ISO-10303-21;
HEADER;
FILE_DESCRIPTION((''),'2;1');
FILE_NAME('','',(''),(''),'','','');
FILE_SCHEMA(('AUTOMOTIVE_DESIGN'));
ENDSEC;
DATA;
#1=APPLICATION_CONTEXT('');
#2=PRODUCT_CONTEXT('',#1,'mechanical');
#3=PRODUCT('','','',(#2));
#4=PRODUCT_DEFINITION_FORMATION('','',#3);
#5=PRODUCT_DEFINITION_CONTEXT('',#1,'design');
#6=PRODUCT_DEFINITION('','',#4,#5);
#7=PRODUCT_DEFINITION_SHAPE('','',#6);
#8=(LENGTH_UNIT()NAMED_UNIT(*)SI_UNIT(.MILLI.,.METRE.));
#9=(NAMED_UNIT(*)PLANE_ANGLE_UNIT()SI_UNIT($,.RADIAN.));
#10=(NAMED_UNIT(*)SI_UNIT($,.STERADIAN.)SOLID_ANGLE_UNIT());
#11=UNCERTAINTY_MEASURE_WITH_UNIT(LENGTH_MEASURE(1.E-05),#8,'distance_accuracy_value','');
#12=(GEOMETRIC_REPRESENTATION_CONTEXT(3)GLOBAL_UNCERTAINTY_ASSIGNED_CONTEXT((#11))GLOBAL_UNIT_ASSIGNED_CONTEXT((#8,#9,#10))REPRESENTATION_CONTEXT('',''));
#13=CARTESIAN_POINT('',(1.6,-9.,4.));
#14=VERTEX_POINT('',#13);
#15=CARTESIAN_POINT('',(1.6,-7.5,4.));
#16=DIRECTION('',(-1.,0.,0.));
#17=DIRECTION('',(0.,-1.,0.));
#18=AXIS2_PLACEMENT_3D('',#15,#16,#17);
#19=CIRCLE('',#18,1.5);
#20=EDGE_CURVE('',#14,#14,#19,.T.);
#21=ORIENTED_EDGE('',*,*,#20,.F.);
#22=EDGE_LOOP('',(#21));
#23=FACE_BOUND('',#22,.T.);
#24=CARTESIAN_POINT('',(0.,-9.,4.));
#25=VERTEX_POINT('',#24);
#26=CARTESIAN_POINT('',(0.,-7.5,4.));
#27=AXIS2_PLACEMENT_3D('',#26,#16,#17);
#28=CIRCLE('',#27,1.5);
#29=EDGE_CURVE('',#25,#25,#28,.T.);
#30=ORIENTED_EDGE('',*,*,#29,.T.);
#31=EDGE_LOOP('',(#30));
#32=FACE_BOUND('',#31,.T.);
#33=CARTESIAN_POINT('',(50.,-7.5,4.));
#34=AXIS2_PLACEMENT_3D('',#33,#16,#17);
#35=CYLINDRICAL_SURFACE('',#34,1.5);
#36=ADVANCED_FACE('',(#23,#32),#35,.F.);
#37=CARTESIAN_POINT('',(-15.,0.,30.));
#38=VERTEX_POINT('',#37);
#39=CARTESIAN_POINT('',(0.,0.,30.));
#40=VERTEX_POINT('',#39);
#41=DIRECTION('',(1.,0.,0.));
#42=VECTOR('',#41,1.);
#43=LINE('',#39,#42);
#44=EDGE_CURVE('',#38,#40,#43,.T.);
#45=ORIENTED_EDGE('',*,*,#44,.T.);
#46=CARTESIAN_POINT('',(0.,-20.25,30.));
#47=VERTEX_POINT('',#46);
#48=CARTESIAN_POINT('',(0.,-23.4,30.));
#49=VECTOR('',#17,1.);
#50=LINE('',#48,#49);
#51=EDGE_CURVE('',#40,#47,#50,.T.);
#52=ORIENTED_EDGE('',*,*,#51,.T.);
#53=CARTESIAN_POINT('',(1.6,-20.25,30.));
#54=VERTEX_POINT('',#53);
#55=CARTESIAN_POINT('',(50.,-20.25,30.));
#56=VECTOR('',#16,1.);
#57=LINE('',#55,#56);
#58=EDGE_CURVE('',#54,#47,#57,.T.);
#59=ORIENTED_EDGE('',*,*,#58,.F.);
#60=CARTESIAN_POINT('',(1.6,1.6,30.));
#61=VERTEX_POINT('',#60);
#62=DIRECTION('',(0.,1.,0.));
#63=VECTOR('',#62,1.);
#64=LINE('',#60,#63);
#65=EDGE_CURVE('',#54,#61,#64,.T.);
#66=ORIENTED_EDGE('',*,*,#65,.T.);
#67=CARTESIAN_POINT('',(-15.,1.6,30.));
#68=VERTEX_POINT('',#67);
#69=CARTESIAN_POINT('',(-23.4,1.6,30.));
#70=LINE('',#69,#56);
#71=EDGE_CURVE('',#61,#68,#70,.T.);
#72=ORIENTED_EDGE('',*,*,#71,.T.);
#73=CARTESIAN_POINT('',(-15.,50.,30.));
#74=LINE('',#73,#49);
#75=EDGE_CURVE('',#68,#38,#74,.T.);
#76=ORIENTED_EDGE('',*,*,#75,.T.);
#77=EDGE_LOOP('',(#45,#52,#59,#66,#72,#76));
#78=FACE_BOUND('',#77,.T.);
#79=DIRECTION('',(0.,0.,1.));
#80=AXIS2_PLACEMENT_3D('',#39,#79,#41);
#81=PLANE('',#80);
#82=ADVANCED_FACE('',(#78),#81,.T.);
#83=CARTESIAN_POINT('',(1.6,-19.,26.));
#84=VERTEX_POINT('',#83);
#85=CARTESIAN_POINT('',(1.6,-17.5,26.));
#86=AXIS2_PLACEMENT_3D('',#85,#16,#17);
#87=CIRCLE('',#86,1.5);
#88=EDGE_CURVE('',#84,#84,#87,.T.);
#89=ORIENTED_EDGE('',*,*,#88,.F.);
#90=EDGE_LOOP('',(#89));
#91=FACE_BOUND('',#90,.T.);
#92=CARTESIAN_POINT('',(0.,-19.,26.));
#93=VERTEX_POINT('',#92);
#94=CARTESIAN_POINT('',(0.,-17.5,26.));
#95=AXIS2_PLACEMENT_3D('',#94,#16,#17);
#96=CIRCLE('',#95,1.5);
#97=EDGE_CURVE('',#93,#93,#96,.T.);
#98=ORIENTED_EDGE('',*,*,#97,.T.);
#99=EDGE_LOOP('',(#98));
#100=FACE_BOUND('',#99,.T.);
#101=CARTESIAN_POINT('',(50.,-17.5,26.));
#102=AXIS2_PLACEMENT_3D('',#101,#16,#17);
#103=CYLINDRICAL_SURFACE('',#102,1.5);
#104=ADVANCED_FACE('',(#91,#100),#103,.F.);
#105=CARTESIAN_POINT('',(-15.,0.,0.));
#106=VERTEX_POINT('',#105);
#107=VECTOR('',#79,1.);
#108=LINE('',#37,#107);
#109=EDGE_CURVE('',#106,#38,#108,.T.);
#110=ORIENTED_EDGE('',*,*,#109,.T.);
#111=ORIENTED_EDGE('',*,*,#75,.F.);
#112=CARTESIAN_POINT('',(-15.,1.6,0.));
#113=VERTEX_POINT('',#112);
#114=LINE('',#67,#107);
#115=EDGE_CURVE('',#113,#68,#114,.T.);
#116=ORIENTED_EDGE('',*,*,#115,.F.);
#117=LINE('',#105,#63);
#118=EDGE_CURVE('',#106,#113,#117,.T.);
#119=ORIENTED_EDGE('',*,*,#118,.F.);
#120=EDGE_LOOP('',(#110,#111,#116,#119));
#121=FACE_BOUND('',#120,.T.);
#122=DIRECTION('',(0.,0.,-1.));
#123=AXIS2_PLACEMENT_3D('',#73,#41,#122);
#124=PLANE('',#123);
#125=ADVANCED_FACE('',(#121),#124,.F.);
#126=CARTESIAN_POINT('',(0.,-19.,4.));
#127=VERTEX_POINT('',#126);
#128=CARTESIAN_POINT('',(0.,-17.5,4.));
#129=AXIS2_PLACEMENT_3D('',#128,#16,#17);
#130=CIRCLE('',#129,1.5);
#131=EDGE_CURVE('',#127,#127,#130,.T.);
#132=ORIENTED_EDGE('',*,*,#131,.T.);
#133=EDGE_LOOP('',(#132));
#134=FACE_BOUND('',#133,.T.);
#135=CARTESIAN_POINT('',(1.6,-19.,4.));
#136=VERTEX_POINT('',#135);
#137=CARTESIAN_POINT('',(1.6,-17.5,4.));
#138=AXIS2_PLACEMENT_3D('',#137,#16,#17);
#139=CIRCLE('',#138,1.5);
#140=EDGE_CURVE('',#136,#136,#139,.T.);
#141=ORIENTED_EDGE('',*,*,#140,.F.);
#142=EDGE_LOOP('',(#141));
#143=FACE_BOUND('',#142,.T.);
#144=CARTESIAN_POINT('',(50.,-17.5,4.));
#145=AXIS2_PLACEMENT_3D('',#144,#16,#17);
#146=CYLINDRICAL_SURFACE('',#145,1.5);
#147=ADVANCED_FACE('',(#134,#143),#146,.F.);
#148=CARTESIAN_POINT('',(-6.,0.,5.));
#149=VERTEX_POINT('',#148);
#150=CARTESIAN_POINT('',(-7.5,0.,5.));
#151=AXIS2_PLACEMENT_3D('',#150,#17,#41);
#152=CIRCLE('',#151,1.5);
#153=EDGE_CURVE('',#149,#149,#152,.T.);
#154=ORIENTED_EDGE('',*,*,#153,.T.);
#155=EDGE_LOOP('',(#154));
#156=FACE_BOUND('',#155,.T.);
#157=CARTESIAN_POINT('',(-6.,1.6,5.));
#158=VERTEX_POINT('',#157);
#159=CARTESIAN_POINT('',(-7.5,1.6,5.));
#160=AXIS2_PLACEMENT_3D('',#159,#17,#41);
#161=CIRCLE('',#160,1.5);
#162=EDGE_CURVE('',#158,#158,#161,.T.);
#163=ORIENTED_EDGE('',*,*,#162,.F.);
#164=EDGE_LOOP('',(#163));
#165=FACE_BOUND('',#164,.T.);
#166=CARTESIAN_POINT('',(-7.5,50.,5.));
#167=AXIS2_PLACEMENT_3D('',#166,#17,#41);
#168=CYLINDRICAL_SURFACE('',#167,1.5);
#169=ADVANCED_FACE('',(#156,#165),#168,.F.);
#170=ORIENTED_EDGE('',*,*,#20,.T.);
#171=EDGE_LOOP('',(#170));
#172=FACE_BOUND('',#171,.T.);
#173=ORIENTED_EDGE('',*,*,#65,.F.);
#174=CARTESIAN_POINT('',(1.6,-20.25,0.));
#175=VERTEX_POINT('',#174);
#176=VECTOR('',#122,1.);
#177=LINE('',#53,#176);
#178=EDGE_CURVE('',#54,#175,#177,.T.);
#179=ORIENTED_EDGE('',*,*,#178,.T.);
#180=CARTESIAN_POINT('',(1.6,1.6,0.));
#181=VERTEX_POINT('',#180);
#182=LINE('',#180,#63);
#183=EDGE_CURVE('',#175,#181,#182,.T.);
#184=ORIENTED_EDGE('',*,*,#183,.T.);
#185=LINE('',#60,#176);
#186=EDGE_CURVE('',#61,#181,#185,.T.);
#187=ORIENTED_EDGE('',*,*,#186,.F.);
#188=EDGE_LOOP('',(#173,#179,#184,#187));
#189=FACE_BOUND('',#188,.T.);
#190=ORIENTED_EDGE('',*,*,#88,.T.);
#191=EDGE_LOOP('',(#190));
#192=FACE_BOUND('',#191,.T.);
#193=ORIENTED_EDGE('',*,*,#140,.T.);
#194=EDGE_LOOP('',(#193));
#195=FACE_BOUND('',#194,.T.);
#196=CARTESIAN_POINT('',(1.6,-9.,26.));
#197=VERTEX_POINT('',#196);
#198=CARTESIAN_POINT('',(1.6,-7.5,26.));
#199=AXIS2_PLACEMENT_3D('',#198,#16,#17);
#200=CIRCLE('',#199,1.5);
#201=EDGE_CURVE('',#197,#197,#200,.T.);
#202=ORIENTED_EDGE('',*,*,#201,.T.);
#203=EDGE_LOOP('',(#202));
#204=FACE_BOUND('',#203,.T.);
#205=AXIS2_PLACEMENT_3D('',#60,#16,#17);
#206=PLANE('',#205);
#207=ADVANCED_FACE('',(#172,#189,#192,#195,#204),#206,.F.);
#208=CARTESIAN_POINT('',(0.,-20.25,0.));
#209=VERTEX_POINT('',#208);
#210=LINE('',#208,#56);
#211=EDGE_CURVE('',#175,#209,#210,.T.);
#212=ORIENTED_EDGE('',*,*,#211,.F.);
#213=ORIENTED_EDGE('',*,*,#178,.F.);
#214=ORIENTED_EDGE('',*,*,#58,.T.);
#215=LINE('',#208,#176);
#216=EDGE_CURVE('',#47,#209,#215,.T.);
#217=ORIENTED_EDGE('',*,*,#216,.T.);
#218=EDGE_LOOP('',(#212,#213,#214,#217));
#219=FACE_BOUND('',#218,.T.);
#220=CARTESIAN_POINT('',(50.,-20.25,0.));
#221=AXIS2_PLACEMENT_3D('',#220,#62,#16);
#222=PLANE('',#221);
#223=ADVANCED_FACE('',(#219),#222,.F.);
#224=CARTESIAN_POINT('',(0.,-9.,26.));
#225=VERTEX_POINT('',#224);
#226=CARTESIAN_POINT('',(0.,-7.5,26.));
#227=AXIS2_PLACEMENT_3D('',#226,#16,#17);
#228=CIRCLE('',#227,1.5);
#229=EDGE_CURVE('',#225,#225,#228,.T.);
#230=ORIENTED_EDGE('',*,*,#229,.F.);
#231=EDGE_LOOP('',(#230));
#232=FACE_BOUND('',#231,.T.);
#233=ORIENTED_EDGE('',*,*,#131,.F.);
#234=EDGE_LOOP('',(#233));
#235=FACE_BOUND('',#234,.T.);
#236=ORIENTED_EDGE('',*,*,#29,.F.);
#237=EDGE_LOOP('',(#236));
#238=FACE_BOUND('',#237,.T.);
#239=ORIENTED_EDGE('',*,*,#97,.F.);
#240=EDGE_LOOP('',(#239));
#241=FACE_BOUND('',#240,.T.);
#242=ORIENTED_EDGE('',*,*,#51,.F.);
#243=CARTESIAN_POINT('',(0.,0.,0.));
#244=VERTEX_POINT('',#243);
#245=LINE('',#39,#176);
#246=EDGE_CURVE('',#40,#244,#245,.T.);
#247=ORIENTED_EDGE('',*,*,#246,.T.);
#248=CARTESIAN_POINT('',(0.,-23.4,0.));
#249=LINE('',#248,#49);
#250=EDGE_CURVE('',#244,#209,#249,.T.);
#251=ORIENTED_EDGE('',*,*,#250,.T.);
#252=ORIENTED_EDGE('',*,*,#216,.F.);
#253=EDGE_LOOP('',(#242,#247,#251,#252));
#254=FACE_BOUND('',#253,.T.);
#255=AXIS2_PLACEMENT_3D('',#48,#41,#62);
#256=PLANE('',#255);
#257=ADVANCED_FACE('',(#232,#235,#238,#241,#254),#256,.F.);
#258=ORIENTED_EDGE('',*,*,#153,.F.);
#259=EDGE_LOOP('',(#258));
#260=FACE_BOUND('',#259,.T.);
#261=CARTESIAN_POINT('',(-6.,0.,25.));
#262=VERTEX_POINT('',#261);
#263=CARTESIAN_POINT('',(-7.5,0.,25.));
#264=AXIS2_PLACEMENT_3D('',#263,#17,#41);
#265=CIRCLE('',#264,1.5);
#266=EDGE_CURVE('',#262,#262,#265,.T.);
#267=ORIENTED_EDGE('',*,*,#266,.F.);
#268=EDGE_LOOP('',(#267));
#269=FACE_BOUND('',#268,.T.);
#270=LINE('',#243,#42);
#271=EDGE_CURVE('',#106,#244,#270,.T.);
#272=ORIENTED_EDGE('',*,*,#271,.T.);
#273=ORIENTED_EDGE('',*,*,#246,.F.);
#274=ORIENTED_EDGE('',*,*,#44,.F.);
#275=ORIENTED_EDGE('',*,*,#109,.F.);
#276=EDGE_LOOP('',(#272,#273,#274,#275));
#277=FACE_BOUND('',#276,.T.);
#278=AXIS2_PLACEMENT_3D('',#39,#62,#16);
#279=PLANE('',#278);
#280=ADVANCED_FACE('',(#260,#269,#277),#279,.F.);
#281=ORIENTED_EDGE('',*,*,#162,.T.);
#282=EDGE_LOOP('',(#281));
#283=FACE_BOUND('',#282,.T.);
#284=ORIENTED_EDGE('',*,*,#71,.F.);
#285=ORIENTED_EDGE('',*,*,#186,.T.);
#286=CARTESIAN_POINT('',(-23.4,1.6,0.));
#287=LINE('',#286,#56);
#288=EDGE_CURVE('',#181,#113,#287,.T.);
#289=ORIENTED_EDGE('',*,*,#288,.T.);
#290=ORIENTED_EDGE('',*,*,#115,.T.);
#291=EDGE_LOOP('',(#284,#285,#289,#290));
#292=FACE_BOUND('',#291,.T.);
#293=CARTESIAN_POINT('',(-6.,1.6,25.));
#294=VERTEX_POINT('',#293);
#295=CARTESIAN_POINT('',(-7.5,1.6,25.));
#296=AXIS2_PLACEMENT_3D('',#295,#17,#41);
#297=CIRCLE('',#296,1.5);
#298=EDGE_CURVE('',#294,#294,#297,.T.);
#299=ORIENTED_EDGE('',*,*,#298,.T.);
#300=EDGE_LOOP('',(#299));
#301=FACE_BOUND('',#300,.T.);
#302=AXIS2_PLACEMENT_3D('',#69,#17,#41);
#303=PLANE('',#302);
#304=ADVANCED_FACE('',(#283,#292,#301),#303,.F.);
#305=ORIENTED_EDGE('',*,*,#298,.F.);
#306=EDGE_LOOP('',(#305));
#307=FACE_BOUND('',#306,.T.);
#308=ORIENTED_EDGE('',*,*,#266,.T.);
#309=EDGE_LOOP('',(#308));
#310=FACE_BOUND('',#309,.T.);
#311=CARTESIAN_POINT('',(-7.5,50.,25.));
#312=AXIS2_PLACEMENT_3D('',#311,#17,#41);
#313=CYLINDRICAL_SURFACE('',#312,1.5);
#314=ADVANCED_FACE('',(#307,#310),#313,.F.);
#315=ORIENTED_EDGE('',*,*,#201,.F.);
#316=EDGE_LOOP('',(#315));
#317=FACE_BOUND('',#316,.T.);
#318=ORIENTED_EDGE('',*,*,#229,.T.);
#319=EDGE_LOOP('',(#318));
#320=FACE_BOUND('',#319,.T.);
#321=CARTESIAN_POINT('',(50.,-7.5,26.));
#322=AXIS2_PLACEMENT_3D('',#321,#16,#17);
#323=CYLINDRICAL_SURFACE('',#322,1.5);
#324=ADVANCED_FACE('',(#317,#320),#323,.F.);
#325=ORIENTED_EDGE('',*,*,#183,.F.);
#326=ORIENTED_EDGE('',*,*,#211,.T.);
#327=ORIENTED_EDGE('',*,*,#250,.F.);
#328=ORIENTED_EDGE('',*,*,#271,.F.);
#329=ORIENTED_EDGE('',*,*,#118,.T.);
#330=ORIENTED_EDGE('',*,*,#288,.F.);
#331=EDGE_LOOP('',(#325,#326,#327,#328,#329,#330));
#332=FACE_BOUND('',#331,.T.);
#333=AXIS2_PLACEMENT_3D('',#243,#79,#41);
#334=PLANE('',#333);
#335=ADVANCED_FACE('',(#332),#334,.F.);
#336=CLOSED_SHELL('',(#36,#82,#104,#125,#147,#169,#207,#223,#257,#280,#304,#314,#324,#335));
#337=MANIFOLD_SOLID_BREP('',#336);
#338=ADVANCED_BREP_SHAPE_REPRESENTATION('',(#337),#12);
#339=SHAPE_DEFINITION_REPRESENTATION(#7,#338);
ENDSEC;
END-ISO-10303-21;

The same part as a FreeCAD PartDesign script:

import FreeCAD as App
import Part
import Sketcher

V = App.Vector
Q = App.Units.Quantity

doc = App.newDocument("Part")
body = doc.addObject("PartDesign::Body", "Body")

sketch1 = body.newObject("Sketcher::SketchObject", "Sketch")
sketch1.AttachmentSupport = (doc.getObject("XY_Plane"), [""])
sketch1.MapMode = "FlatFace"
sketch1.addGeometry(Part.LineSegment(V(-23.4, 0, 0), V(0, 0, 0)), False)
sketch1.addGeometry(Part.LineSegment(V(0, 0, 0), V(0, -23.4, 0)), False)
sketch1.addGeometry(Part.LineSegment(V(0, -23.4, 0), V(1.6, -23.4, 0)), False)
sketch1.addGeometry(Part.LineSegment(V(1.6, -23.4, 0), V(1.6, 1.6, 0)), False)
sketch1.addGeometry(Part.LineSegment(V(1.6, 1.6, 0), V(-23.4, 1.6, 0)), False)
sketch1.addGeometry(Part.LineSegment(V(-23.4, 1.6, 0), V(-23.4, 0, 0)), False)
sketch1.addConstraint(Sketcher.Constraint("Coincident", 0, 2, 1, 1))
sketch1.addConstraint(Sketcher.Constraint("Coincident", 1, 2, 2, 1))
sketch1.addConstraint(Sketcher.Constraint("Coincident", 2, 2, 3, 1))
sketch1.addConstraint(Sketcher.Constraint("Coincident", 3, 2, 4, 1))
sketch1.addConstraint(Sketcher.Constraint("Coincident", 4, 2, 5, 1))
sketch1.addConstraint(Sketcher.Constraint("Coincident", 5, 2, 0, 1))
sketch1.addConstraint(Sketcher.Constraint("Horizontal", 0))
sketch1.addConstraint(Sketcher.Constraint("Vertical", 1))
sketch1.addConstraint(Sketcher.Constraint("Horizontal", 2))
sketch1.addConstraint(Sketcher.Constraint("Vertical", 3))
sketch1.addConstraint(Sketcher.Constraint("Horizontal", 4))
sketch1.addConstraint(Sketcher.Constraint("Vertical", 5))
sketch1.addConstraint(Sketcher.Constraint("Coincident", 0, 2, -1, 1))
sketch1.addConstraint(Sketcher.Constraint("Equal", 0, 1))
sketch1.addConstraint(Sketcher.Constraint("Equal", 4, 3))
sketch1.addConstraint(Sketcher.Constraint("DistanceX", 4, 2, 4, 1, Q("25 mm")))
sketch1.addConstraint(Sketcher.Constraint("DistanceX", 0, 1, 0, 2, Q("23.4 mm")))
pad1 = body.newObject("PartDesign::Pad", "Pad")
pad1.Profile = sketch1
pad1.Length = 30

sketch2 = body.newObject("Sketcher::SketchObject", "Sketch001")
sketch2.AttachmentSupport = (doc.getObject("XZ_Plane"), [""])
sketch2.MapMode = "FlatFace"
sketch2.addGeometry(Part.Circle(V(-7.5, 5, 0), V(0, 0, 1), 1.5), False)
sketch2.addGeometry(Part.Circle(V(-7.5, 25, 0), V(0, 0, 1), 1.5), False)
sketch2.addConstraint(Sketcher.Constraint("Equal", 0, 1))
sketch2.addConstraint(Sketcher.Constraint("Vertical", 0, 3, 1, 3))
sketch2.addConstraint(Sketcher.Constraint("Diameter", 0, Q("3 mm")))
sketch2.addConstraint(Sketcher.Constraint("DistanceY", -1, 1, 0, 3, Q("5 mm")))
sketch2.addConstraint(Sketcher.Constraint("DistanceY", -1, 1, 1, 3, Q("25 mm")))
sketch2.addConstraint(Sketcher.Constraint("DistanceX", 0, 3, -1, 1, Q("7.5 mm")))
pocket1 = body.newObject("PartDesign::Pocket", "Pocket")
pocket1.Profile = sketch2
pocket1.Length = 50

sketch3 = body.newObject("Sketcher::SketchObject", "Sketch002")
sketch3.AttachmentSupport = (doc.getObject("YZ_Plane"), [""])
sketch3.MapMode = "FlatFace"
sketch3.addGeometry(Part.Circle(V(-7.5, 4, 0), V(0, 0, 1), 1.5), False)
sketch3.addGeometry(Part.Circle(V(-7.5, 26, 0), V(0, 0, 1), 1.5), False)
sketch3.addGeometry(Part.Circle(V(-17.5, 4, 0), V(0, 0, 1), 1.5), False)
sketch3.addGeometry(Part.Circle(V(-17.5, 26, 0), V(0, 0, 1), 1.5), False)
sketch3.addConstraint(Sketcher.Constraint("Equal", 0, 1))
sketch3.addConstraint(Sketcher.Constraint("Equal", 1, 2))
sketch3.addConstraint(Sketcher.Constraint("Equal", 2, 3))
sketch3.addConstraint(Sketcher.Constraint("Horizontal", 0, 3, 2, 3))
sketch3.addConstraint(Sketcher.Constraint("Horizontal", 1, 3, 3, 3))
sketch3.addConstraint(Sketcher.Constraint("Vertical", 0, 3, 1, 3))
sketch3.addConstraint(Sketcher.Constraint("Vertical", 2, 3, 3, 3))
sketch3.addConstraint(Sketcher.Constraint("Diameter", 0, Q("3 mm")))
sketch3.addConstraint(Sketcher.Constraint("DistanceY", -1, 1, 0, 3, Q("4 mm")))
sketch3.addConstraint(Sketcher.Constraint("DistanceY", -1, 1, 1, 3, Q("26 mm")))
sketch3.addConstraint(Sketcher.Constraint("DistanceX", 2, 3, 0, 3, Q("10 mm")))
sketch3.addConstraint(Sketcher.Constraint("DistanceX", 0, 3, -1, 1, Q("7.5 mm")))
pocket2 = body.newObject("PartDesign::Pocket", "Pocket001")
pocket2.Profile = sketch3
pocket2.Length = 50
pocket2.Reversed = True

sketch4 = body.newObject("Sketcher::SketchObject", "Sketch003")
sketch4.AttachmentSupport = (doc.getObject("YZ_Plane"), [""])
sketch4.MapMode = "FlatFace"
sketch4.addGeometry(Part.LineSegment(V(-20.25, 0, 0), V(-23.4, 0, 0)), False)
sketch4.addGeometry(Part.LineSegment(V(-23.4, 0, 0), V(-23.4, 30, 0)), False)
sketch4.addGeometry(Part.LineSegment(V(-23.4, 30, 0), V(-20.25, 30, 0)), False)
sketch4.addGeometry(Part.LineSegment(V(-20.25, 30, 0), V(-20.25, 0, 0)), False)
sketch4.addConstraint(Sketcher.Constraint("Coincident", 0, 2, 1, 1))
sketch4.addConstraint(Sketcher.Constraint("Coincident", 1, 2, 2, 1))
sketch4.addConstraint(Sketcher.Constraint("Coincident", 2, 2, 3, 1))
sketch4.addConstraint(Sketcher.Constraint("Coincident", 3, 2, 0, 1))
sketch4.addConstraint(Sketcher.Constraint("Horizontal", 0))
sketch4.addConstraint(Sketcher.Constraint("Vertical", 1))
sketch4.addConstraint(Sketcher.Constraint("Horizontal", 2))
sketch4.addConstraint(Sketcher.Constraint("Vertical", 3))
sketch4.addConstraint(Sketcher.Constraint("PointOnObject", 0, 2, -1))
sketch4.addConstraint(Sketcher.Constraint("DistanceY", 1, 1, 1, 2, Q("30 mm")))
sketch4.addConstraint(Sketcher.Constraint("DistanceX", 0, 2, 0, 1, Q("3.15 mm")))
sketch4.addConstraint(Sketcher.Constraint("DistanceX", 0, 2, -1, 1, Q("23.4 mm")))
pocket3 = body.newObject("PartDesign::Pocket", "Pocket002")
pocket3.Profile = sketch4
pocket3.Length = 50
pocket3.Reversed = True

sketch5 = body.newObject("Sketcher::SketchObject", "Sketch004")
sketch5.AttachmentSupport = (doc.getObject("XZ_Plane"), [""])
sketch5.MapMode = "FlatFace"
sketch5.addGeometry(Part.LineSegment(V(-23.4, 30, 0), V(-23.4, 0, 0)), False)
sketch5.addGeometry(Part.LineSegment(V(-23.4, 0, 0), V(-15, 0, 0)), False)
sketch5.addGeometry(Part.LineSegment(V(-15, 0, 0), V(-15, 30, 0)), False)
sketch5.addGeometry(Part.LineSegment(V(-15, 30, 0), V(-23.4, 30, 0)), False)
sketch5.addConstraint(Sketcher.Constraint("Coincident", 0, 2, 1, 1))
sketch5.addConstraint(Sketcher.Constraint("Coincident", 1, 2, 2, 1))
sketch5.addConstraint(Sketcher.Constraint("Coincident", 2, 2, 3, 1))
sketch5.addConstraint(Sketcher.Constraint("Coincident", 3, 2, 0, 1))
sketch5.addConstraint(Sketcher.Constraint("Vertical", 0))
sketch5.addConstraint(Sketcher.Constraint("Horizontal", 1))
sketch5.addConstraint(Sketcher.Constraint("Vertical", 2))
sketch5.addConstraint(Sketcher.Constraint("Horizontal", 3))
sketch5.addConstraint(Sketcher.Constraint("PointOnObject", 0, 2, -1))
sketch5.addConstraint(Sketcher.Constraint("DistanceY", 0, 2, 0, 1, Q("30 mm")))
sketch5.addConstraint(Sketcher.Constraint("DistanceX", 1, 1, 1, 2, Q("8.4 mm")))
sketch5.addConstraint(Sketcher.Constraint("DistanceX", 1, 2, -1, 1, Q("15 mm")))
pocket4 = body.newObject("PartDesign::Pocket", "Pocket003")
pocket4.Profile = sketch5
pocket4.Length = 50

doc.recompute()
